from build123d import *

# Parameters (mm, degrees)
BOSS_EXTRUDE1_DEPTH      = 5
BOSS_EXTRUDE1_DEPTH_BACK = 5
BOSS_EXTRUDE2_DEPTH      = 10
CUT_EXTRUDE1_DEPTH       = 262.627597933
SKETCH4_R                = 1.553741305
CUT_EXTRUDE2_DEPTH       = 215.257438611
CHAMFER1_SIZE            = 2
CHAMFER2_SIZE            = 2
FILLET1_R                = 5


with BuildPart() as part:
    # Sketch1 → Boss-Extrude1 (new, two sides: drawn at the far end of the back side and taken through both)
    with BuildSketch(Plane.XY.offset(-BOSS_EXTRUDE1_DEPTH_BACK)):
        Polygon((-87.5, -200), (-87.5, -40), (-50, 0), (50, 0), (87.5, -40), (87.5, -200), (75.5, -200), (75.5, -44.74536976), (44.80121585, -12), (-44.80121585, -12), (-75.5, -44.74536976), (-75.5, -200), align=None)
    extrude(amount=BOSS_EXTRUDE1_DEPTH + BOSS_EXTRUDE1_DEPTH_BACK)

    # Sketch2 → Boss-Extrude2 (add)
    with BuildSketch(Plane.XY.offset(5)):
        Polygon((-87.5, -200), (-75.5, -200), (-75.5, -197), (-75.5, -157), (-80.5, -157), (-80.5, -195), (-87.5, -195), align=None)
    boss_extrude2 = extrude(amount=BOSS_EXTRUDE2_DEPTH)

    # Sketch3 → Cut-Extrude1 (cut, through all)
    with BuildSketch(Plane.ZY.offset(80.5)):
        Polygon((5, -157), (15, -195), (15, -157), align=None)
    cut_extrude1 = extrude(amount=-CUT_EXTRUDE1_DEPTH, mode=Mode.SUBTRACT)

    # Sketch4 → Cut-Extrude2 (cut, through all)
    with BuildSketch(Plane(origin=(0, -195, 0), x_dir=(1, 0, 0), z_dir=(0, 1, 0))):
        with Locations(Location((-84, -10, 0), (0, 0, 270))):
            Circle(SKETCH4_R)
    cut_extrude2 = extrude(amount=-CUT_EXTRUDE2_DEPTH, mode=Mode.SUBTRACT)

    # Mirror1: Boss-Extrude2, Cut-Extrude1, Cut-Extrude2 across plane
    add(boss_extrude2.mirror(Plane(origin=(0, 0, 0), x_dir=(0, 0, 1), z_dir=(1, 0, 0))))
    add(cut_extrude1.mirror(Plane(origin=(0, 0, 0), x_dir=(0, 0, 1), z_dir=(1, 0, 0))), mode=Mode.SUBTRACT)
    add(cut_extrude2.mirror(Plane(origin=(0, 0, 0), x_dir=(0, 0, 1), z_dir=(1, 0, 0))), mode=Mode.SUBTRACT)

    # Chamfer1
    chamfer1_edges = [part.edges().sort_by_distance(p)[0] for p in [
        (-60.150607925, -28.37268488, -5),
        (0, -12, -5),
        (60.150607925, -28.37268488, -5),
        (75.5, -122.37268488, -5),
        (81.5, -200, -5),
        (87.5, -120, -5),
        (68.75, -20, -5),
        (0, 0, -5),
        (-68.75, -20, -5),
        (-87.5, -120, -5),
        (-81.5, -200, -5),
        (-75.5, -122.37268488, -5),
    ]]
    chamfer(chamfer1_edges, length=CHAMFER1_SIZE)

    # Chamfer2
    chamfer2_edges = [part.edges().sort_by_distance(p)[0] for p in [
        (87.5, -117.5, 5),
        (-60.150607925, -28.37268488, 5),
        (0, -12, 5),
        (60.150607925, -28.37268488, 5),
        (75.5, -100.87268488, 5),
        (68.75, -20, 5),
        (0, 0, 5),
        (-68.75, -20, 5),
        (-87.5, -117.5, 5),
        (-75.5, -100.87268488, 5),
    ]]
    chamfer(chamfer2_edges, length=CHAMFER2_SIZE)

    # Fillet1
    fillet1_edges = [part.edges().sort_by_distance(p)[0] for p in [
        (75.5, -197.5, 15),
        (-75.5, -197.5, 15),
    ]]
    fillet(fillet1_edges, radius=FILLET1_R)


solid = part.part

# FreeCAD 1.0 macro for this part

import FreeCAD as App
import Part
import Sketcher
from FreeCAD import Vector


def edges_at(feature, points):
    """Names of the edges that pass closest to the given points."""
    edges = feature.Shape.Edges
    near = lambda p: min(range(len(edges)), key=lambda i: edges[i].distToShape(Part.Vertex(*p))[0])
    return sorted({f"Edge{near(p) + 1}" for p in points})

doc = App.newDocument("Part")
body = doc.addObject("PartDesign::Body", "Body")

# Sketch on XY plane
sketch1 = body.newObject("Sketcher::SketchObject", "Sketch")
sketch1.AttachmentSupport = (doc.getObject("XY_Plane"), [""])
sketch1.MapMode = "FlatFace"
sketch1.addGeometry(Part.LineSegment(Vector(-88, -40, 0), Vector(-88, -200, 0)), False)
sketch1.addGeometry(Part.LineSegment(Vector(-88, -200, 0), Vector(-76, -200, 0)), False)
sketch1.addGeometry(Part.LineSegment(Vector(-76, -200, 0), Vector(-76, -45, 0)), False)
sketch1.addGeometry(Part.LineSegment(Vector(-76, -45, 0), Vector(-45, -12, 0)), False)
sketch1.addGeometry(Part.LineSegment(Vector(-45, -12, 0), Vector(45, -12, 0)), False)
sketch1.addGeometry(Part.LineSegment(Vector(45, -12, 0), Vector(76, -45, 0)), False)
sketch1.addGeometry(Part.LineSegment(Vector(76, -45, 0), Vector(76, -200, 0)), False)
sketch1.addGeometry(Part.LineSegment(Vector(76, -200, 0), Vector(88, -200, 0)), False)
sketch1.addGeometry(Part.LineSegment(Vector(88, -200, 0), Vector(88, -40, 0)), False)
sketch1.addGeometry(Part.LineSegment(Vector(88, -40, 0), Vector(50, 0, 0)), False)
sketch1.addGeometry(Part.LineSegment(Vector(50, 0, 0), Vector(-50, 0, 0)), False)
sketch1.addGeometry(Part.LineSegment(Vector(-50, 0, 0), Vector(-88, -40, 0)), False)
sketch1.addConstraint(Sketcher.Constraint("Coincident", 0, 2, 1, 1))
sketch1.addConstraint(Sketcher.Constraint("Coincident", 1, 2, 2, 1))
sketch1.addConstraint(Sketcher.Constraint("Coincident", 2, 2, 3, 1))
sketch1.addConstraint(Sketcher.Constraint("Coincident", 3, 2, 4, 1))
sketch1.addConstraint(Sketcher.Constraint("Coincident", 4, 2, 5, 1))
sketch1.addConstraint(Sketcher.Constraint("Coincident", 5, 2, 6, 1))
sketch1.addConstraint(Sketcher.Constraint("Coincident", 6, 2, 7, 1))
sketch1.addConstraint(Sketcher.Constraint("Coincident", 7, 2, 8, 1))
sketch1.addConstraint(Sketcher.Constraint("Coincident", 8, 2, 9, 1))
sketch1.addConstraint(Sketcher.Constraint("Coincident", 9, 2, 10, 1))
sketch1.addConstraint(Sketcher.Constraint("Coincident", 10, 2, 11, 1))
sketch1.addConstraint(Sketcher.Constraint("Coincident", 11, 2, 0, 1))
sketch1.addConstraint(Sketcher.Constraint("Vertical", 0))
sketch1.addConstraint(Sketcher.Constraint("Horizontal", 1))
sketch1.addConstraint(Sketcher.Constraint("Vertical", 2))
sketch1.addConstraint(Sketcher.Constraint("Horizontal", 4))
sketch1.addConstraint(Sketcher.Constraint("Vertical", 6))
sketch1.addConstraint(Sketcher.Constraint("Horizontal", 7))
sketch1.addConstraint(Sketcher.Constraint("Vertical", 8))
sketch1.addConstraint(Sketcher.Constraint("Horizontal", 10))
sketch1.addConstraint(Sketcher.Constraint("Symmetric", 9, 2, 10, 2, -1, 1))
sketch1.addConstraint(Sketcher.Constraint("Symmetric", 2, 2, 5, 2, -2))
sketch1.addConstraint(Sketcher.Constraint("Symmetric", 0, 2, 7, 2, -2))
sketch1.addConstraint(Sketcher.Constraint("Parallel", 5, 9))
sketch1.addConstraint(Sketcher.Constraint("Parallel", 3, 11))
sketch1.addConstraint(Sketcher.Constraint("Horizontal", 8, 2, 11, 2))
sketch1.addConstraint(Sketcher.Constraint("DistanceX", 1, 1, 1, 2, 12.0))
sketch1.addConstraint(Sketcher.Constraint("DistanceX", 10, 2, 10, 1, 100.0))
sketch1.addConstraint(Sketcher.Constraint("DistanceY", 0, 2, 0, 1, 160.0))
sketch1.addConstraint(Sketcher.Constraint("DistanceY", 0, 2, -1, 1, 200.0))
sketch1.addConstraint(Sketcher.Constraint("DistanceY", 3, 2, -1, 1, 12.0))
sketch1.addConstraint(Sketcher.Constraint("DistanceX", 2, 2, 5, 2, 151.0))
sketch1.addConstraint(Sketcher.Constraint("DistanceX", 4, 1, 4, 2, 89.602432))
pad1 = body.newObject("PartDesign::Pad", "Pad")
pad1.Profile = sketch1
pad1.Type = "TwoLengths"
pad1.Length = 5
pad1.Length2 = 5

# Sketch on XY plane
sketch2 = body.newObject("Sketcher::SketchObject", "Sketch001")
sketch2.AttachmentSupport = (doc.getObject("XY_Plane"), [""])
sketch2.MapMode = "FlatFace"
sketch2.AttachmentOffset = App.Placement(Vector(0, 0, 5), App.Rotation())
sketch2.addGeometry(Part.LineSegment(Vector(-88, -200, 0), Vector(-76, -200, 0)), False)
sketch2.addGeometry(Part.LineSegment(Vector(-76, -200, 0), Vector(-76, -157, 0)), False)
sketch2.addGeometry(Part.LineSegment(Vector(-76, -157, 0), Vector(-80, -157, 0)), False)
sketch2.addGeometry(Part.LineSegment(Vector(-80, -157, 0), Vector(-80, -195, 0)), False)
sketch2.addGeometry(Part.LineSegment(Vector(-80, -195, 0), Vector(-88, -195, 0)), False)
sketch2.addGeometry(Part.LineSegment(Vector(-88, -195, 0), Vector(-88, -200, 0)), False)
sketch2.addConstraint(Sketcher.Constraint("Coincident", 0, 2, 1, 1))
sketch2.addConstraint(Sketcher.Constraint("Coincident", 1, 2, 2, 1))
sketch2.addConstraint(Sketcher.Constraint("Coincident", 2, 2, 3, 1))
sketch2.addConstraint(Sketcher.Constraint("Coincident", 3, 2, 4, 1))
sketch2.addConstraint(Sketcher.Constraint("Coincident", 4, 2, 5, 1))
sketch2.addConstraint(Sketcher.Constraint("Coincident", 5, 2, 0, 1))
sketch2.addConstraint(Sketcher.Constraint("Horizontal", 0))
sketch2.addConstraint(Sketcher.Constraint("Vertical", 1))
sketch2.addConstraint(Sketcher.Constraint("Horizontal", 2))
sketch2.addConstraint(Sketcher.Constraint("Vertical", 3))
sketch2.addConstraint(Sketcher.Constraint("Horizontal", 4))
sketch2.addConstraint(Sketcher.Constraint("Vertical", 5))
sketch2.addConstraint(Sketcher.Constraint("Equal", 2, 5))
sketch2.addConstraint(Sketcher.Constraint("DistanceX", 0, 1, 0, 2, 12.0))
sketch2.addConstraint(Sketcher.Constraint("DistanceX", 2, 2, 2, 1, 5.0))
sketch2.addConstraint(Sketcher.Constraint("DistanceY", 1, 1, 1, 2, 43.0))
sketch2.addConstraint(Sketcher.Constraint("DistanceY", 0, 2, -1, 1, 200.0))
sketch2.addConstraint(Sketcher.Constraint("DistanceX", 0, 2, -1, 1, 75.5))
pad2 = body.newObject("PartDesign::Pad", "Pad001")
pad2.Profile = sketch2
pad2.Length = 10

# Sketch on YZ plane
sketch3 = body.newObject("Sketcher::SketchObject", "Sketch002")
sketch3.AttachmentSupport = (doc.getObject("YZ_Plane"), [""])
sketch3.MapMode = "FlatFace"
sketch3.AttachmentOffset = App.Placement(Vector(0, 0, -80.5), App.Rotation())
sketch3.addGeometry(Part.LineSegment(Vector(-157, 5, 0), Vector(-195, 15, 0)), False)
sketch3.addGeometry(Part.LineSegment(Vector(-195, 15, 0), Vector(-157, 15, 0)), False)
sketch3.addGeometry(Part.LineSegment(Vector(-157, 15, 0), Vector(-157, 5, 0)), False)
sketch3.addConstraint(Sketcher.Constraint("Coincident", 0, 2, 1, 1))
sketch3.addConstraint(Sketcher.Constraint("Coincident", 1, 2, 2, 1))
sketch3.addConstraint(Sketcher.Constraint("Coincident", 2, 2, 0, 1))
sketch3.addConstraint(Sketcher.Constraint("Horizontal", 1))
sketch3.addConstraint(Sketcher.Constraint("Vertical", 2))
sketch3.addConstraint(Sketcher.Constraint("DistanceX", 1, 1, 1, 2, 38.0))
sketch3.addConstraint(Sketcher.Constraint("DistanceY", 2, 2, 2, 1, 10.0))
sketch3.addConstraint(Sketcher.Constraint("DistanceX", 0, 2, -1, 1, 195.0))
sketch3.addConstraint(Sketcher.Constraint("DistanceY", -1, 1, 0, 2, 15.0))
pocket1 = body.newObject("PartDesign::Pocket", "Pocket")
pocket1.Profile = sketch3
pocket1.Type = "ThroughAll"
pocket1.Reversed = True

# Sketch on XZ plane
sketch4 = body.newObject("Sketcher::SketchObject", "Sketch003")
sketch4.AttachmentSupport = (doc.getObject("XZ_Plane"), [""])
sketch4.MapMode = "FlatFace"
sketch4.AttachmentOffset = App.Placement(Vector(0, 0, 195), App.Rotation())
sketch4.addGeometry(Part.Circle(Vector(-84, 10, 0), Vector(0, 0, 1), 1.6), False)
sketch4.addConstraint(Sketcher.Constraint("DistanceX", 0, 3, -1, 1, 84.0))
sketch4.addConstraint(Sketcher.Constraint("DistanceY", -1, 1, 0, 3, 10.0))
sketch4.addConstraint(Sketcher.Constraint("Diameter", 0, 3.107483))
pocket2 = body.newObject("PartDesign::Pocket", "Pocket001")
pocket2.Profile = sketch4
pocket2.Type = "ThroughAll"
pocket2.Reversed = True
doc.recompute()

mirrored = body.newObject("PartDesign::Mirrored", "Mirrored")
mirrored.Originals = [pad2, pocket1, pocket2]
mirrored.MirrorPlane = (doc.getObject("YZ_Plane"), [""])
body.Tip = mirrored
doc.recompute()

chamfer = body.newObject("PartDesign::Chamfer", "Chamfer")
chamfer.Base = (mirrored, edges_at(mirrored, [
    (-60.151, -28.373, -5),
    (0, -12, -5),
    (60.151, -28.373, -5),
    (75.5, -122.373, -5),
    (81.5, -200, -5),
    (87.5, -120, -5),
    (68.75, -20, -5),
    (0, 0, -5),
    (-68.75, -20, -5),
    (-87.5, -120, -5),
    (-81.5, -200, -5),
    (-75.5, -122.373, -5),
]))
chamfer.Size = 2
doc.recompute()

chamfer2 = body.newObject("PartDesign::Chamfer", "Chamfer001")
chamfer2.Base = (chamfer, edges_at(chamfer, [
    (87.5, -117.5, 5),
    (-60.151, -28.373, 5),
    (0, -12, 5),
    (60.151, -28.373, 5),
    (75.5, -100.873, 5),
    (68.75, -20, 5),
    (0, 0, 5),
    (-68.75, -20, 5),
    (-87.5, -117.5, 5),
    (-75.5, -100.873, 5),
]))
chamfer2.Size = 2
doc.recompute()

fillet = body.newObject("PartDesign::Fillet", "Fillet")
fillet.Base = (chamfer2, edges_at(chamfer2, [(75.5, -197.5, 15), (-75.5, -197.5, 15)]))
fillet.Radius = 5

doc.recompute()
